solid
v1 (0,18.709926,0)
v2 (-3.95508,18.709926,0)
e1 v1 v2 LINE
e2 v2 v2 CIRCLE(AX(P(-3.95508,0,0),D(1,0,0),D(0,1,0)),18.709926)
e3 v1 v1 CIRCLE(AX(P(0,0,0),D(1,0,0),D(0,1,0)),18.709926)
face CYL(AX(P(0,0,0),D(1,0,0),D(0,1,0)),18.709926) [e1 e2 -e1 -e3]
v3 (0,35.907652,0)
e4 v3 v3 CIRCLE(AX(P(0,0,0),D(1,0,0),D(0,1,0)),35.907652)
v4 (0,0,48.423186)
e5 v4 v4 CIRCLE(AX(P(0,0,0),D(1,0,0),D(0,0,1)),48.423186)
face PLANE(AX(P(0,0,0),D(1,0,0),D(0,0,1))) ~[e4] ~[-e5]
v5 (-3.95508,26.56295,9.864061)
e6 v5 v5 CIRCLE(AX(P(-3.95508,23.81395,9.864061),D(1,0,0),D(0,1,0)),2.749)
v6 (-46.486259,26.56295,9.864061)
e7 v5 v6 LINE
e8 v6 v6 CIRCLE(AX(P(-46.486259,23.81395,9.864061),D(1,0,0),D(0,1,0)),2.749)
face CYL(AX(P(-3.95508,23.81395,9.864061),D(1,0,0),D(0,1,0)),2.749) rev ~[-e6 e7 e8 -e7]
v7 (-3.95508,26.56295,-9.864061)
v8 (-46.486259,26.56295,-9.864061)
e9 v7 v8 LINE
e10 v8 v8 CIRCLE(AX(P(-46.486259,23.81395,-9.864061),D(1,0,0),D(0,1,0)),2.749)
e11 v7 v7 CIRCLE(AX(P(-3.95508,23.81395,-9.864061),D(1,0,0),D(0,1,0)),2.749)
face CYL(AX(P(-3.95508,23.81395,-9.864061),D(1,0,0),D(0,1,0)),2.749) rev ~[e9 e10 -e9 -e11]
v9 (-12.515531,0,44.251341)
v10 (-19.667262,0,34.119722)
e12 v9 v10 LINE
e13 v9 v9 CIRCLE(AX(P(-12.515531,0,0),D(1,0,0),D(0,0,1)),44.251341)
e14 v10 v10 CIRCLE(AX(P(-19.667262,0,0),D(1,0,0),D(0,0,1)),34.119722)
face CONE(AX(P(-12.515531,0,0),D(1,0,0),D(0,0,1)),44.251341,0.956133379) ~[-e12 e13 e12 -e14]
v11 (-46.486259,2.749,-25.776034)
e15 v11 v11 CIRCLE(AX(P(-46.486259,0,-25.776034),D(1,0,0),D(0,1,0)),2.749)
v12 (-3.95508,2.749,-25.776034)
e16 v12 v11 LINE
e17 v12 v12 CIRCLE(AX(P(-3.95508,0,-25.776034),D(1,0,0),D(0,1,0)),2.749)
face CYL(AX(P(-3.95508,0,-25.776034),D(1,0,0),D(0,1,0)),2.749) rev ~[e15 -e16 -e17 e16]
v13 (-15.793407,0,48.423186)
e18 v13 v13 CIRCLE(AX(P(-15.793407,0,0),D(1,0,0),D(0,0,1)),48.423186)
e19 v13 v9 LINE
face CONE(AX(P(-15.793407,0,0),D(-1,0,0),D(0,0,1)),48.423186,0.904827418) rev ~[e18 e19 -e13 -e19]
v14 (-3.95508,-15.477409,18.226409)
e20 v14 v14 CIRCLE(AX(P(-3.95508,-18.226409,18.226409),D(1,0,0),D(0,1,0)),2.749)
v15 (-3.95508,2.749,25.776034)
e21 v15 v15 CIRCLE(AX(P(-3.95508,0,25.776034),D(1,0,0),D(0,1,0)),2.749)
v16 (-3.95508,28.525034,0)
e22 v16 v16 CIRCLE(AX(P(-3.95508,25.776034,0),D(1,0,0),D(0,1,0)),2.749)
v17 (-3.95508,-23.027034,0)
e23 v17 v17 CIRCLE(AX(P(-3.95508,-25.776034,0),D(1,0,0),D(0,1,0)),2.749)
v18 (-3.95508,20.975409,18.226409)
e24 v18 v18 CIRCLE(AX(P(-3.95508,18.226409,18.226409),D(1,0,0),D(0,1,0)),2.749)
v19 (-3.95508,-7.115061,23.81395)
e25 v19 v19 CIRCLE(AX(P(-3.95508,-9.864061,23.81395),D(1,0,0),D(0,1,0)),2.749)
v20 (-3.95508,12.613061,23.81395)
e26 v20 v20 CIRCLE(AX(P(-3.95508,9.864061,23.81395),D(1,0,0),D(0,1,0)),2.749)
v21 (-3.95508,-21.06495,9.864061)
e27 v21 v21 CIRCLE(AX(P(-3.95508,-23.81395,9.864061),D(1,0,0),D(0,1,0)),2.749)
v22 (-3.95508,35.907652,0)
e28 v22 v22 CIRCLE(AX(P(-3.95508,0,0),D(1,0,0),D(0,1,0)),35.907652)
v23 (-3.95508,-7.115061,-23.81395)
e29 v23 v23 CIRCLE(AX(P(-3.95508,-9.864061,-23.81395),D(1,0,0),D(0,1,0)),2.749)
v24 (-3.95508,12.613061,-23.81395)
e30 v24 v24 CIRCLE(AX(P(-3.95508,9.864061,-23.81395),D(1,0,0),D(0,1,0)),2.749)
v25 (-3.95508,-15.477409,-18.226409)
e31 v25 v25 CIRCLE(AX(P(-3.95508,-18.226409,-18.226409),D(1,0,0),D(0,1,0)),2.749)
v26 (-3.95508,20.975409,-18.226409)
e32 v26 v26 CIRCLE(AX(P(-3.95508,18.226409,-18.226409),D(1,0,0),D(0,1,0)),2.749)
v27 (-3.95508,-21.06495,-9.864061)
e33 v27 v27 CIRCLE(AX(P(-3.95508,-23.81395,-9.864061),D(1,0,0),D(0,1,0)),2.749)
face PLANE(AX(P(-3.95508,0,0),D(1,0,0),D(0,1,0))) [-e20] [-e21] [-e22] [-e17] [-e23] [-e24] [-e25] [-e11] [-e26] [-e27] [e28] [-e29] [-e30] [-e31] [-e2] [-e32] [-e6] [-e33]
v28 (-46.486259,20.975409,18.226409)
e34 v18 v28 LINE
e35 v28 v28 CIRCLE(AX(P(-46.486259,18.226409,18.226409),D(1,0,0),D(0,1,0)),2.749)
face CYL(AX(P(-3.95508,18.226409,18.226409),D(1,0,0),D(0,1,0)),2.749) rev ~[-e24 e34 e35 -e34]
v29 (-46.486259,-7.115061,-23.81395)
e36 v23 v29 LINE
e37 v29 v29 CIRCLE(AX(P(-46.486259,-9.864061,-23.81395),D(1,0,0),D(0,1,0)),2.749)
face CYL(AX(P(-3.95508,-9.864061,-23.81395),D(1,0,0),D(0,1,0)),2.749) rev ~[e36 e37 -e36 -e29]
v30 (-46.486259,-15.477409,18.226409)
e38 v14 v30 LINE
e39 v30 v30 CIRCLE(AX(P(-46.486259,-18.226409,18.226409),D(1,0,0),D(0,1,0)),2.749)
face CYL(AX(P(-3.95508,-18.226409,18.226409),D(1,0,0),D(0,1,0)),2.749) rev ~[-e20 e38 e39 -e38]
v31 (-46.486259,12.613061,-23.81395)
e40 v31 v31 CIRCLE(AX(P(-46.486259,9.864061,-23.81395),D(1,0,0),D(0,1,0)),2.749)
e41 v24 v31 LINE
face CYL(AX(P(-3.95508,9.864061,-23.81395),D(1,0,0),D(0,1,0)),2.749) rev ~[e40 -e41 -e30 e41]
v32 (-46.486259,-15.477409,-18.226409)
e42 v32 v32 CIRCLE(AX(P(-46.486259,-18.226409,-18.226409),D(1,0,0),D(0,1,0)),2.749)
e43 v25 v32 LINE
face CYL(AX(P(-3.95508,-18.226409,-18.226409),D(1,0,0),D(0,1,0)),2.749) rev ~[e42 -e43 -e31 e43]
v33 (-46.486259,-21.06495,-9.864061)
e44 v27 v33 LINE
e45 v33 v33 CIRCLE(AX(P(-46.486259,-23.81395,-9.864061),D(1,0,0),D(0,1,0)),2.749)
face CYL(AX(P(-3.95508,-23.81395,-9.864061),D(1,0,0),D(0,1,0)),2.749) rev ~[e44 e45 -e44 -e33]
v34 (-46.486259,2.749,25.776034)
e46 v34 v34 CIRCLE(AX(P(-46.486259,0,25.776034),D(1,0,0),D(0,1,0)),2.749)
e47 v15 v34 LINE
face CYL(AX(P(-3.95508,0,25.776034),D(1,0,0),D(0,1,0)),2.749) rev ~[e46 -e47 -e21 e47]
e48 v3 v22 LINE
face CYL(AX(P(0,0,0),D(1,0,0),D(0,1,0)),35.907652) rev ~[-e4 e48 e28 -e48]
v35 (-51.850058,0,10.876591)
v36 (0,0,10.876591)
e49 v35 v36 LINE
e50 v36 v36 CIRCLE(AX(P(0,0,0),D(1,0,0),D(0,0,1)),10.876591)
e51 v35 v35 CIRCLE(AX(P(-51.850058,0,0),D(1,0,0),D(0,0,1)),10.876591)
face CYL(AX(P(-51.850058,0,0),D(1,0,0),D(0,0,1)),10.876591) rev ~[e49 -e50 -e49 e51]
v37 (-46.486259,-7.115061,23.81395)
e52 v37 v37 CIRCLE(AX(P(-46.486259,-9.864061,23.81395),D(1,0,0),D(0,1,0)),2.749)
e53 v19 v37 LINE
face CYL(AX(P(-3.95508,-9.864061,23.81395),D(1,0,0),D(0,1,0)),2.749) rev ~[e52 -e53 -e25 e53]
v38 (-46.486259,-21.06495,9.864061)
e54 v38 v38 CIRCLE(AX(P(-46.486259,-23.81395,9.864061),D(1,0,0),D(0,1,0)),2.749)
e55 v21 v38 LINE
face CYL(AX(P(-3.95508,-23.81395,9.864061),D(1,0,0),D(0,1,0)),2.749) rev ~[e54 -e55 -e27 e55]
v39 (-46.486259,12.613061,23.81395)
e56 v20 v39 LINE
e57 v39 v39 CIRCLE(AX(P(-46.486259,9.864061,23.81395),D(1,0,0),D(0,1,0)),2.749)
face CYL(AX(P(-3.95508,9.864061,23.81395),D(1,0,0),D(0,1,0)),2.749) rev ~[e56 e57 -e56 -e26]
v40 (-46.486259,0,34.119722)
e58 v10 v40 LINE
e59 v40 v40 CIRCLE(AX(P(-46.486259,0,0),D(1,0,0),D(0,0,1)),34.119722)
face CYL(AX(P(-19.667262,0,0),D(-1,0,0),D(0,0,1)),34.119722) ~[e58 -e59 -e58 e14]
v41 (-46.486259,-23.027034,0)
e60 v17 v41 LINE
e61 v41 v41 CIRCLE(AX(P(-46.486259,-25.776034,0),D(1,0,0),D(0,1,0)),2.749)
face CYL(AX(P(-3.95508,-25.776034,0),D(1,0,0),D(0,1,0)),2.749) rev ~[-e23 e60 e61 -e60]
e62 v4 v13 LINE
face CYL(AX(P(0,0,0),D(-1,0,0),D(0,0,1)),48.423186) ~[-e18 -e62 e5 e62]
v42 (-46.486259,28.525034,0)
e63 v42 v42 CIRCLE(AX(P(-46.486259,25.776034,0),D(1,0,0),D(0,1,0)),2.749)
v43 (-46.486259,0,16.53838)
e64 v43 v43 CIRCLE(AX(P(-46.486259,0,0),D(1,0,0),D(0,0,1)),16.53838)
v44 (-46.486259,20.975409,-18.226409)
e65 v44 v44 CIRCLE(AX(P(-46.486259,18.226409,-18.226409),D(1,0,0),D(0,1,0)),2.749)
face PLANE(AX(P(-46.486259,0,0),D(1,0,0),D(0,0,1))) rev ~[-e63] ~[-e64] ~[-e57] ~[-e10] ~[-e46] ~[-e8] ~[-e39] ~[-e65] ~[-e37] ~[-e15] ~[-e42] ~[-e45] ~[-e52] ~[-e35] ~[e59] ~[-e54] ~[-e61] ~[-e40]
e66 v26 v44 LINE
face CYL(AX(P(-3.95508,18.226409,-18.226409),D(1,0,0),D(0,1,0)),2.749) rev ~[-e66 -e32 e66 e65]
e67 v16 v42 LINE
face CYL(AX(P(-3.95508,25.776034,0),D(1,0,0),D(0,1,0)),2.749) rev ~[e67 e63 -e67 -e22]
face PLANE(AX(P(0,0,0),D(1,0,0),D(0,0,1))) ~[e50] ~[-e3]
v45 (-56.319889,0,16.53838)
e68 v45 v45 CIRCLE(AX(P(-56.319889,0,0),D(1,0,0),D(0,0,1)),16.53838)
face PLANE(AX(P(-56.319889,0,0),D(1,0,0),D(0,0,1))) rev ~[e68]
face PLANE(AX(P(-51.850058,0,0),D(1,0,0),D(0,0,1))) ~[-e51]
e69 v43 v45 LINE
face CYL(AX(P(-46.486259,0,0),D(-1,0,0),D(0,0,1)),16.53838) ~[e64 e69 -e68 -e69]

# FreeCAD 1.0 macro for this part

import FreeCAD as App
import Part
import Sketcher
from FreeCAD import Vector


def add_polygon(sketch, points):
    """Adds a closed chain of lines whose ends are joined by coincident constraints."""
    first, n = sketch.GeometryCount, len(points)
    for a, b in zip(points, points[1:] + points[:1]):
        sketch.addGeometry(Part.LineSegment(App.Vector(*a, 0), App.Vector(*b, 0)), False)
    for i in range(n):
        sketch.addConstraint(Sketcher.Constraint("Coincident", first + i, 2, first + (i + 1) % n, 1))

doc = App.newDocument("Part")
body = doc.addObject("PartDesign::Body", "Body")

# Sketch on XZ plane
sketch1 = body.newObject("Sketcher::SketchObject", "Sketch")
sketch1.AttachmentSupport = (doc.getObject("XZ_Plane"), [""])
sketch1.MapMode = "FlatFace"
add_polygon(sketch1, [(-56.319889, 0), (-51.850058, 0), (-51.850058, 10.876591), (0, 10.876591), (0, 48.423186), (-15.793407, 48.423186), (-12.515531, 44.251341), (-19.667262, 34.119722), (-46.486259, 34.119722), (-46.486259, 16.53838), (-56.319889, 16.53838)])  # lines 0-10
sketch1.addConstraint([
    Sketcher.Constraint("Horizontal", 0),
    Sketcher.Constraint("Vertical", 1),
    Sketcher.Constraint("Horizontal", 2),
    Sketcher.Constraint("Vertical", 3),
    Sketcher.Constraint("Horizontal", 4),
    Sketcher.Constraint("Horizontal", 7),
    Sketcher.Constraint("Vertical", 8),
    Sketcher.Constraint("Horizontal", 9),
    Sketcher.Constraint("Vertical", 10),
    Sketcher.Constraint("PointOnObject", 0, 2, -1),
    Sketcher.Constraint("PointOnObject", 2, 2, -2),
    Sketcher.Constraint("DistanceX", 0, 1, 0, 2, 4.469831),
    Sketcher.Constraint("DistanceX", 9, 2, 9, 1, 9.83363),
    Sketcher.Constraint("DistanceY", 1, 1, 1, 2, 10.876591),
    Sketcher.Constraint("DistanceY", 10, 2, 10, 1, 16.53838),
    Sketcher.Constraint("Distance", 5, 5.305541),
    Sketcher.Constraint("Distance", 6, 12.40149),
    Sketcher.Constraint("DistanceX", 2, 1, 2, 2, 51.850058),
    Sketcher.Constraint("DistanceX", 4, 2, 4, 1, 15.793407),
    Sketcher.Constraint("DistanceX", 7, 2, 7, 1, 26.818997),
    Sketcher.Constraint("DistanceY", 3, 1, 3, 2, 37.546595),
    Sketcher.Constraint("DistanceY", 8, 2, 8, 1, 17.581342),
])
revolution = body.newObject("PartDesign::Revolution", "Revolution")
revolution.Profile = sketch1
revolution.ReferenceAxis = (sketch1, ["H_Axis"])
revolution.Angle = 360

# Sketch on YZ plane
sketch2 = body.newObject("Sketcher::SketchObject", "Sketch001")
sketch2.AttachmentSupport = (doc.getObject("YZ_Plane"), [""])
sketch2.MapMode = "FlatFace"
sketch2.addGeometry([
    Part.Circle(Vector(0, 0, 0), Vector(0, 0, 1), 35.907652),
    Part.Circle(Vector(0, 0, 0), Vector(0, 0, 1), 18.709926),
], False)
sketch2.addConstraint([
    Sketcher.Constraint("Coincident", 0, 3, -1, 1),
    Sketcher.Constraint("Coincident", 1, 3, -1, 1),
    Sketcher.Constraint("Diameter", 0, 71.815304),
    Sketcher.Constraint("Diameter", 1, 37.419852),
])
pocket1 = body.newObject("PartDesign::Pocket", "Pocket")
pocket1.Profile = sketch2
pocket1.Length = 3.95508

# Sketch on YZ plane
sketch3 = body.newObject("Sketcher::SketchObject", "Sketch002")
sketch3.AttachmentSupport = (doc.getObject("YZ_Plane"), [""])
sketch3.MapMode = "FlatFace"
sketch3.AttachmentOffset = App.Placement(Vector(0, 0, -3.95508), App.Rotation())
sketch3.addGeometry([
    Part.Circle(Vector(0, 25.776034, 0), Vector(0, 0, 1), 2.749),  # 0
    Part.Circle(Vector(-9.864061, 23.81395, 0), Vector(0, 0, 1), 2.749),  # 1
    Part.Circle(Vector(-18.226409, 18.226409, 0), Vector(0, 0, 1), 2.749),  # 2
    Part.Circle(Vector(-23.81395, 9.864061, 0), Vector(0, 0, 1), 2.749),  # 3
    Part.Circle(Vector(-25.776034, 0, 0), Vector(0, 0, 1), 2.749),  # 4
    Part.Circle(Vector(-23.81395, -9.864061, 0), Vector(0, 0, 1), 2.749),  # 5
    Part.Circle(Vector(-18.226409, -18.226409, 0), Vector(0, 0, 1), 2.749),  # 6
    Part.Circle(Vector(-9.864061, -23.81395, 0), Vector(0, 0, 1), 2.749),  # 7
    Part.Circle(Vector(0, -25.776034, 0), Vector(0, 0, 1), 2.749),  # 8
    Part.Circle(Vector(9.864061, -23.81395, 0), Vector(0, 0, 1), 2.749),  # 9
    Part.Circle(Vector(18.226409, -18.226409, 0), Vector(0, 0, 1), 2.749),  # 10
    Part.Circle(Vector(23.81395, -9.864061, 0), Vector(0, 0, 1), 2.749),  # 11
    Part.Circle(Vector(25.776034, 0, 0), Vector(0, 0, 1), 2.749),  # 12
    Part.Circle(Vector(23.81395, 9.864061, 0), Vector(0, 0, 1), 2.749),  # 13
    Part.Circle(Vector(18.226409, 18.226409, 0), Vector(0, 0, 1), 2.749),  # 14
    Part.Circle(Vector(9.864061, 23.81395, 0), Vector(0, 0, 1), 2.749),  # 15
], False)
sketch3.addConstraint([
    Sketcher.Constraint("Equal", 0, 1),
    Sketcher.Constraint("Equal", 1, 2),
    Sketcher.Constraint("Equal", 2, 3),
    Sketcher.Constraint("Equal", 3, 4),
    Sketcher.Constraint("Equal", 4, 5),
    Sketcher.Constraint("Equal", 5, 6),
    Sketcher.Constraint("Equal", 6, 7),
    Sketcher.Constraint("Equal", 7, 8),
    Sketcher.Constraint("Equal", 8, 9),
    Sketcher.Constraint("Equal", 9, 10),
    Sketcher.Constraint("Equal", 10, 11),
    Sketcher.Constraint("Equal", 11, 12),
    Sketcher.Constraint("Equal", 12, 13),
    Sketcher.Constraint("Equal", 13, 14),
    Sketcher.Constraint("Equal", 14, 15),
    Sketcher.Constraint("Symmetric", 0, 3, 8, 3, -1, 1),
    Sketcher.Constraint("Symmetric", 1, 3, 9, 3, -1, 1),
    Sketcher.Constraint("Symmetric", 2, 3, 10, 3, -1, 1),
    Sketcher.Constraint("Symmetric", 3, 3, 11, 3, -1, 1),
    Sketcher.Constraint("Symmetric", 4, 3, 12, 3, -1, 1),
    Sketcher.Constraint("Symmetric", 5, 3, 13, 3, -1, 1),
    Sketcher.Constraint("Symmetric", 6, 3, 14, 3, -1, 1),
    Sketcher.Constraint("Symmetric", 7, 3, 15, 3, -1, 1),
    Sketcher.Constraint("Symmetric", 7, 3, 9, 3, -2),
    Sketcher.Constraint("Symmetric", 6, 3, 10, 3, -2),
    Sketcher.Constraint("Symmetric", 5, 3, 11, 3, -2),
    Sketcher.Constraint("PointOnObject", 0, 3, -2),
    Sketcher.Constraint("PointOnObject", 4, 3, -1),
    Sketcher.Constraint("Diameter", 0, 5.498),
    Sketcher.Constraint("DistanceX", 1, 3, -1, 1, 9.864061),
    Sketcher.Constraint("DistanceY", -1, 1, 1, 3, 23.81395),
    Sketcher.Constraint("DistanceX", 2, 3, -1, 1, 18.226409),
    Sketcher.Constraint("DistanceY", -1, 1, 2, 3, 18.226409),
    Sketcher.Constraint("DistanceX", 3, 3, -1, 1, 23.81395),
    Sketcher.Constraint("DistanceY", -1, 1, 3, 3, 9.864061),
    Sketcher.Constraint("DistanceY", -1, 1, 0, 3, 25.776034),
    Sketcher.Constraint("DistanceX", 4, 3, -1, 1, 25.776034),
])
pocket2 = body.newObject("PartDesign::Pocket", "Pocket001")
pocket2.Profile = sketch3
pocket2.Length = 47

doc.recompute()
